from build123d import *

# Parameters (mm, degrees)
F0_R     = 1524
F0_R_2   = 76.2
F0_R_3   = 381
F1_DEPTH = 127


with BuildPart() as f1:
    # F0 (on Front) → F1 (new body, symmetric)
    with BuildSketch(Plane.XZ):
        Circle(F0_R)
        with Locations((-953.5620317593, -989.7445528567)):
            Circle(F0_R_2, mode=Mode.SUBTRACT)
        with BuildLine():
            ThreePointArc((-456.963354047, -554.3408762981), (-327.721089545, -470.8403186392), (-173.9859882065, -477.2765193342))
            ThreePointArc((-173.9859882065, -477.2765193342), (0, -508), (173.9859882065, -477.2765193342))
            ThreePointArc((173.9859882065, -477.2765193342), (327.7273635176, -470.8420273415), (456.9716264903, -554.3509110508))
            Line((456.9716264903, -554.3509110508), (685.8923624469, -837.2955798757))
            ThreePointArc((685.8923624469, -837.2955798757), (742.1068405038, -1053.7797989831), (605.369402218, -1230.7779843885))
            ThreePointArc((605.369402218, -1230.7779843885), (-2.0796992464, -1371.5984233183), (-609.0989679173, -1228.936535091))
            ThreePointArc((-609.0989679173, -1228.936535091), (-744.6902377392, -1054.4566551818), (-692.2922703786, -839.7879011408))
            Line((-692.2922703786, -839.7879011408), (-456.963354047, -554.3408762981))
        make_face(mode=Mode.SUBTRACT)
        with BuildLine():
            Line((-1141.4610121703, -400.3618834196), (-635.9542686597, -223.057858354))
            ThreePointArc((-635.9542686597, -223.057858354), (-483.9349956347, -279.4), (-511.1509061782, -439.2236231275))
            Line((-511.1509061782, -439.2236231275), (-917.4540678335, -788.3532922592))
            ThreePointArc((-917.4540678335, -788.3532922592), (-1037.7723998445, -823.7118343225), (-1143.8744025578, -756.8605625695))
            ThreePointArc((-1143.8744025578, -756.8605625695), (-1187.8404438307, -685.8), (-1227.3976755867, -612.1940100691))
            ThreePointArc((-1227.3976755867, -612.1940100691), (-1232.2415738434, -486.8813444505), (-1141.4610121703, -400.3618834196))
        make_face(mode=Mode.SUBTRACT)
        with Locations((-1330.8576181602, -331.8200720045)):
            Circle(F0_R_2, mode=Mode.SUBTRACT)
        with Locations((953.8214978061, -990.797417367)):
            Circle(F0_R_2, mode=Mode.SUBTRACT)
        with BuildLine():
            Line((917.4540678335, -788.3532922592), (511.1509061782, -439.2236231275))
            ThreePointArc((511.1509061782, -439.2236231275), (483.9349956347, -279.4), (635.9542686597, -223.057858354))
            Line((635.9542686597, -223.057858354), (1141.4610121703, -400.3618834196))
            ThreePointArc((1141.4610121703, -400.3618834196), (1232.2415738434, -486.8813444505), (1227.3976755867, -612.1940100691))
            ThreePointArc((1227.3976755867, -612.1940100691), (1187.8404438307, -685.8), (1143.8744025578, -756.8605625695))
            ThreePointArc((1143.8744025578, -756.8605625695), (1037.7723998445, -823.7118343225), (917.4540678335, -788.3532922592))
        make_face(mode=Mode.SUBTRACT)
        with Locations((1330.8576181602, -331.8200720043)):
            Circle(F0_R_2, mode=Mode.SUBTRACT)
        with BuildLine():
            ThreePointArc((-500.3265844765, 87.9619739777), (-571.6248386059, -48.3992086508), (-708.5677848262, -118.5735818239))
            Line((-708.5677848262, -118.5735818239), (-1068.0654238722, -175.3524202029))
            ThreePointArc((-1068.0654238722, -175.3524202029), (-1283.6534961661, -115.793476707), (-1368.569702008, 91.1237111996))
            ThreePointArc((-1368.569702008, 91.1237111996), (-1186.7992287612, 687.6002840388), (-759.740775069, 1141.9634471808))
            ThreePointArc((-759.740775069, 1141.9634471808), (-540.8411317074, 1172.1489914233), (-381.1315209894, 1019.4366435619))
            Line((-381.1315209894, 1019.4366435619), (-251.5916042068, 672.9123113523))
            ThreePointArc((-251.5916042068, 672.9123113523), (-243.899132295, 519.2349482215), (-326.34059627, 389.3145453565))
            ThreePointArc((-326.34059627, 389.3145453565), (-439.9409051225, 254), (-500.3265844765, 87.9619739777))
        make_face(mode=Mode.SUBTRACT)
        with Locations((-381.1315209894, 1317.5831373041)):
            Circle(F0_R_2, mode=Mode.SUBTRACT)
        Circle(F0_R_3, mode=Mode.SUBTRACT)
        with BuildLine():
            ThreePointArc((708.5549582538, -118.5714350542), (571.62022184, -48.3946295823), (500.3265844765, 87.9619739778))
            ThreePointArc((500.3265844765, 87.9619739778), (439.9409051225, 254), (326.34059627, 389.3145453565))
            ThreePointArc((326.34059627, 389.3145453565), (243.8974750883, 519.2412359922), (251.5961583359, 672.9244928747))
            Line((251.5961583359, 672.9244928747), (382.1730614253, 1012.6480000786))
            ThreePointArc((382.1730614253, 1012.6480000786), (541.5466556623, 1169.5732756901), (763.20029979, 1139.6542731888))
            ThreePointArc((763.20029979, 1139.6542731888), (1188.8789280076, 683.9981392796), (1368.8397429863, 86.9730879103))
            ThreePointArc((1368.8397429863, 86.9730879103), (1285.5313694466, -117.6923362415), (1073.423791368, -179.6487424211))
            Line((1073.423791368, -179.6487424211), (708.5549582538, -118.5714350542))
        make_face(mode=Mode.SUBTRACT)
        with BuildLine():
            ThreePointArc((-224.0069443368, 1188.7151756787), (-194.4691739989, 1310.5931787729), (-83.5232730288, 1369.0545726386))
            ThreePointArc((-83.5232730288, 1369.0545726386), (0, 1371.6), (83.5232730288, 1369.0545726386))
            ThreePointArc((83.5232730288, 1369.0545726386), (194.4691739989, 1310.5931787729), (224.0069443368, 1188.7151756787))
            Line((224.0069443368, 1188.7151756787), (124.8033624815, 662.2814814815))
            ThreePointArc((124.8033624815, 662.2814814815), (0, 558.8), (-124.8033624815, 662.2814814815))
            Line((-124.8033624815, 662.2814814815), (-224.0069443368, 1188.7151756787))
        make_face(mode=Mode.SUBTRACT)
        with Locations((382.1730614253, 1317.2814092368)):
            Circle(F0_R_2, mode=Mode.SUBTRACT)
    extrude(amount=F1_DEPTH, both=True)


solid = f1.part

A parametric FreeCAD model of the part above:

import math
import FreeCAD as App
import Part
import Sketcher
from FreeCAD import Vector
Q = App.Units.Quantity

doc = App.newDocument("Part")
body = doc.addObject("PartDesign::Body", "Body")

sketch1 = body.newObject("Sketcher::SketchObject", "Sketch")
sketch1.AttachmentSupport = (doc.getObject("XZ_Plane"), [""])
sketch1.MapMode = "FlatFace"
sketch1.addGeometry([
    Part.Circle(Vector(0, 0, 0), Vector(0, 0, 1), 1524),
    Part.Circle(Vector(-953.562032, -989.744553, 0), Vector(0, 0, 1), 76.2),
    Part.LineSegment(Vector(-692.29227, -839.787901, 0), Vector(-456.963354, -554.340876, 0)),
    Part.ArcOfCircle(Part.Circle(Vector(-260.978982, -715.914779, 0), Vector(0, 0, 1), 254), math.radians(69.971221), math.radians(140.497066)),
    Part.ArcOfCircle(Part.Circle(Vector(0, 0, 0), Vector(0, 0, 1), 508), math.radians(-110.028779), math.radians(-69.971221)),
    Part.ArcOfCircle(Part.Circle(Vector(260.978982, -715.914779, 0), Vector(0, 0, 1), 254), math.radians(39.5), math.radians(110.028779)),
    Part.LineSegment(Vector(456.971626, -554.350911, 0), Vector(685.892362, -837.29558, 0)),
    Part.ArcOfCircle(Part.Circle(Vector(493.263957, -1002.856135, 0), Vector(0, 0, 1), 254), math.radians(-63.809312), math.radians(40.67845)),
    Part.ArcOfCircle(Part.Circle(Vector(0, 0, 0), Vector(0, 0, 1), 1371.6), math.radians(-116.364438), math.radians(-63.809312)),
    Part.ArcOfCircle(Part.Circle(Vector(-496.302863, -1001.355695, 0), Vector(0, 0, 1), 254), math.radians(140.498852), math.radians(243.635562)),
    Part.ArcOfCircle(Part.Circle(Vector(-1091.020156, -544.172453, 0), Vector(0, 0, 1), 152.4), math.radians(109.328071), math.radians(206.508826)),
    Part.LineSegment(Vector(-1141.461012, -400.361883, 0), Vector(-635.954269, -223.057858, 0)),
    Part.ArcOfCircle(Part.Circle(Vector(-593.920222, -342.9, 0), Vector(0, 0, 1), 127), math.radians(-49.328071), math.radians(109.328071)),
    Part.LineSegment(Vector(-511.150906, -439.223623, 0), Vector(-917.454068, -788.353292, 0)),
    Part.ArcOfCircle(Part.Circle(Vector(-1016.777247, -672.764945, 0), Vector(0, 0, 1), 152.4), math.radians(-146.508826), math.radians(-49.328071)),
    Part.ArcOfCircle(Part.Circle(Vector(0, 0, 0), Vector(0, 0, 1), 1371.6), math.radians(-153.491174), math.radians(-146.508826)),
    Part.Circle(Vector(-1330.857618, -331.820072, 0), Vector(0, 0, 1), 76.2),
    Part.Circle(Vector(0, 0, 0), Vector(0, 0, 1), 381),
    Part.Circle(Vector(953.821498, -990.797417, 0), Vector(0, 0, 1), 76.2),
    Part.ArcOfCircle(Part.Circle(Vector(1016.777247, -672.764945, 0), Vector(0, 0, 1), 152.4), math.radians(-130.671929), math.radians(-33.491174)),
    Part.LineSegment(Vector(917.454068, -788.353292, 0), Vector(511.150906, -439.223623, 0)),
    Part.ArcOfCircle(Part.Circle(Vector(593.920222, -342.9, 0), Vector(0, 0, 1), 127), math.radians(70.671929), math.radians(229.328071)),
    Part.LineSegment(Vector(635.954269, -223.057858, 0), Vector(1141.461012, -400.361883, 0)),
    Part.ArcOfCircle(Part.Circle(Vector(1091.020156, -544.172453, 0), Vector(0, 0, 1), 152.4), math.radians(-26.508826), math.radians(70.671929)),
    Part.ArcOfCircle(Part.Circle(Vector(0, 0, 0), Vector(0, 0, 1), 1371.6), math.radians(-33.491174), math.radians(-26.508826)),
    Part.Circle(Vector(1330.857618, -331.820072, 0), Vector(0, 0, 1), 76.2),
    Part.ArcOfCircle(Part.Circle(Vector(0, 0, 0), Vector(0, 0, 1), 508), math.radians(129.971221), math.radians(170.028779)),
    Part.ArcOfCircle(Part.Circle(Vector(-750.489877, 131.942961, 0), Vector(0, 0, 1), 254), math.radians(-80.5), math.radians(-9.971221)),
    Part.LineSegment(Vector(-708.567785, -118.573582, 0), Vector(-1068.065424, -175.35242, 0)),
    Part.ArcOfCircle(Part.Circle(Vector(-1115.130868, 74.24895, 0), Vector(0, 0, 1), 254), math.radians(176.190688), math.radians(280.67845)),
    Part.ArcOfCircle(Part.Circle(Vector(0, 0, 0), Vector(0, 0, 1), 1371.6), math.radians(123.635562), math.radians(176.190688)),
    Part.ArcOfCircle(Part.Circle(Vector(-619.048039, 930.488735, 0), Vector(0, 0, 1), 254), math.radians(20.498852), math.radians(123.635562)),
    Part.LineSegment(Vector(-381.131521, 1019.436644, 0), Vector(-251.591604, 672.912311, 0)),
    Part.ArcOfCircle(Part.Circle(Vector(-489.510894, 583.971818, 0), Vector(0, 0, 1), 254), math.radians(-50.028779), math.radians(20.497066)),
    Part.LineSegment(Vector(-124.803362, 662.281481, 0), Vector(-224.006944, 1188.715176, 0)),
    Part.ArcOfCircle(Part.Circle(Vector(-74.242909, 1216.937398, 0), Vector(0, 0, 1), 152.4), math.radians(93.491174), math.radians(190.671929)),
    Part.ArcOfCircle(Part.Circle(Vector(0, 0, 0), Vector(0, 0, 1), 1371.6), math.radians(86.508826), math.radians(93.491174)),
    Part.ArcOfCircle(Part.Circle(Vector(74.242909, 1216.937398, 0), Vector(0, 0, 1), 152.4), math.radians(-10.671929), math.radians(86.508826)),
    Part.LineSegment(Vector(224.006944, 1188.715176, 0), Vector(124.803362, 662.281481, 0)),
    Part.ArcOfCircle(Part.Circle(Vector(0, 685.8, 0), Vector(0, 0, 1), 127), math.radians(-169.328071), math.radians(-10.671929)),
    Part.Circle(Vector(-381.131521, 1317.583137, 0), Vector(0, 0, 1), 76.2),
    Part.LineSegment(Vector(1073.423791, -179.648742, 0), Vector(708.554958, -118.571435, 0)),
    Part.ArcOfCircle(Part.Circle(Vector(750.489877, 131.942961, 0), Vector(0, 0, 1), 254), math.radians(-170.028779), math.radians(-99.502934)),
    Part.ArcOfCircle(Part.Circle(Vector(0, 0, 0), Vector(0, 0, 1), 508), math.radians(9.971221), math.radians(50.028779)),
    Part.ArcOfCircle(Part.Circle(Vector(489.510894, 583.971818, 0), Vector(0, 0, 1), 254), math.radians(159.5), math.radians(230.028779)),
    Part.LineSegment(Vector(251.596158, 672.924493, 0), Vector(382.173061, 1012.648, 0)),
    Part.ArcOfCircle(Part.Circle(Vector(621.866911, 928.607186, 0), Vector(0, 0, 1), 254), math.radians(56.190688), math.radians(160.67845)),
    Part.ArcOfCircle(Part.Circle(Vector(0, 0, 0), Vector(0, 0, 1), 1371.6), math.radians(3.635562), math.radians(56.190688)),
    Part.ArcOfCircle(Part.Circle(Vector(1115.350902, 70.866961, 0), Vector(0, 0, 1), 254), math.radians(-99.501148), math.radians(3.635562)),
    Part.Circle(Vector(382.173061, 1317.281409, 0), Vector(0, 0, 1), 76.2),
], False)
sketch1.addConstraint([
    Sketcher.Constraint("Tangent", 2, 2, 3, 2),
    Sketcher.Constraint("Tangent", 3, 1, 4, 1),
    Sketcher.Constraint("Tangent", 4, 2, 5, 2),
    Sketcher.Constraint("Coincident", 5, 1, 6, 1),
    Sketcher.Constraint("Coincident", 6, 2, 7, 2),
    Sketcher.Constraint("Tangent", 7, 1, 8, 2),
    Sketcher.Constraint("Tangent", 8, 1, 9, 2),
    Sketcher.Constraint("Coincident", 9, 1, 2, 1),
    Sketcher.Constraint("Tangent", 10, 1, 11, 1),
    Sketcher.Constraint("Tangent", 11, 2, 12, 2),
    Sketcher.Constraint("Tangent", 12, 1, 13, 1),
    Sketcher.Constraint("Tangent", 13, 2, 14, 2),
    Sketcher.Constraint("Tangent", 14, 1, 15, 2),
    Sketcher.Constraint("Tangent", 15, 1, 10, 2),
    Sketcher.Constraint("Tangent", 19, 1, 20, 1),
    Sketcher.Constraint("Tangent", 20, 2, 21, 2),
    Sketcher.Constraint("Tangent", 21, 1, 22, 1),
    Sketcher.Constraint("Tangent", 22, 2, 23, 2),
    Sketcher.Constraint("Tangent", 23, 1, 24, 2),
    Sketcher.Constraint("Tangent", 24, 1, 19, 2),
    Sketcher.Constraint("Tangent", 26, 2, 27, 2),
    Sketcher.Constraint("Coincident", 27, 1, 28, 1),
    Sketcher.Constraint("Coincident", 28, 2, 29, 2),
    Sketcher.Constraint("Tangent", 29, 1, 30, 2),
    Sketcher.Constraint("Tangent", 30, 1, 31, 2),
    Sketcher.Constraint("Coincident", 31, 1, 32, 1),
    Sketcher.Constraint("Tangent", 32, 2, 33, 2),
    Sketcher.Constraint("Tangent", 33, 1, 26, 1),
    Sketcher.Constraint("Tangent", 34, 2, 35, 2),
    Sketcher.Constraint("Tangent", 35, 1, 36, 2),
    Sketcher.Constraint("Tangent", 36, 1, 37, 2),
    Sketcher.Constraint("Tangent", 37, 1, 38, 1),
    Sketcher.Constraint("Tangent", 38, 2, 39, 2),
    Sketcher.Constraint("Tangent", 39, 1, 34, 1),
    Sketcher.Constraint("Tangent", 41, 2, 42, 2),
    Sketcher.Constraint("Tangent", 42, 1, 43, 1),
    Sketcher.Constraint("Tangent", 43, 2, 44, 2),
    Sketcher.Constraint("Coincident", 44, 1, 45, 1),
    Sketcher.Constraint("Coincident", 45, 2, 46, 2),
    Sketcher.Constraint("Tangent", 46, 1, 47, 2),
    Sketcher.Constraint("Tangent", 47, 1, 48, 2),
    Sketcher.Constraint("Coincident", 48, 1, 41, 1),
    Sketcher.Constraint("Coincident", 0, 3, -1, 1),
    Sketcher.Constraint("Coincident", 4, 3, -1, 1),
    Sketcher.Constraint("Coincident", 8, 3, -1, 1),
    Sketcher.Constraint("Coincident", 15, 3, -1, 1),
    Sketcher.Constraint("Coincident", 17, 3, -1, 1),
    Sketcher.Constraint("Coincident", 24, 3, -1, 1),
    Sketcher.Constraint("Coincident", 26, 3, -1, 1),
    Sketcher.Constraint("Coincident", 30, 3, -1, 1),
    Sketcher.Constraint("Coincident", 36, 3, -1, 1),
    Sketcher.Constraint("Coincident", 43, 3, -1, 1),
    Sketcher.Constraint("Coincident", 47, 3, -1, 1),
    Sketcher.Constraint("Equal", 3, 5),
    Sketcher.Constraint("Equal", 5, 7),
    Sketcher.Constraint("Equal", 7, 9),
    Sketcher.Constraint("Equal", 10, 14),
    Sketcher.Constraint("Equal", 8, 15),
    Sketcher.Constraint("Equal", 1, 16),
    Sketcher.Constraint("Equal", 16, 18),
    Sketcher.Constraint("Equal", 14, 19),
    Sketcher.Constraint("Equal", 12, 21),
    Sketcher.Constraint("Equal", 19, 23),
    Sketcher.Constraint("Equal", 15, 24),
    Sketcher.Constraint("Equal", 18, 25),
    Sketcher.Constraint("Equal", 4, 26),
    Sketcher.Constraint("Equal", 9, 27),
    Sketcher.Constraint("Equal", 27, 29),
    Sketcher.Constraint("Equal", 24, 30),
    Sketcher.Constraint("Equal", 29, 31),
    Sketcher.Constraint("Equal", 31, 33),
    Sketcher.Constraint("Equal", 23, 35),
    Sketcher.Constraint("Equal", 30, 36),
    Sketcher.Constraint("Equal", 35, 37),
    Sketcher.Constraint("Equal", 21, 39),
    Sketcher.Constraint("Equal", 25, 40),
    Sketcher.Constraint("Equal", 33, 42),
    Sketcher.Constraint("Equal", 26, 43),
    Sketcher.Constraint("Equal", 42, 44),
    Sketcher.Constraint("Equal", 44, 46),
    Sketcher.Constraint("Equal", 36, 47),
    Sketcher.Constraint("Equal", 46, 48),
    Sketcher.Constraint("Equal", 40, 49),
    Sketcher.Constraint("Symmetric", 12, 3, 21, 3, -2),
    Sketcher.Constraint("Symmetric", 16, 3, 25, 3, -2),
    Sketcher.Constraint("Symmetric", 34, 2, 37, 1, -2),
    Sketcher.Constraint("Horizontal", 3, 3, 5, 3),
    Sketcher.Constraint("Horizontal", 14, 3, 19, 3),
    Sketcher.Constraint("Horizontal", 10, 3, 23, 3),
    Sketcher.Constraint("Horizontal", 27, 3, 42, 3),
    Sketcher.Constraint("Horizontal", 33, 3, 44, 3),
    Sketcher.Constraint("Vertical", 40, 3, 31, 1),
    Sketcher.Constraint("Vertical", 49, 3, 45, 2),
    Sketcher.Constraint("Equal", 11, 13),
    Sketcher.Constraint("Equal", 6, 28),
    Sketcher.Constraint("Equal", 2, 32),
    Sketcher.Constraint("Equal", 22, 34),
    Sketcher.Constraint("Equal", 32, 41),
    Sketcher.Constraint("Equal", 28, 45),
    Sketcher.Constraint("Diameter", 0, Q("120 in")),
    Sketcher.Constraint("Diameter", 1, Q("6 in")),
    Sketcher.Constraint("Diameter", 17, Q("30 in")),
    Sketcher.Constraint("Radius", 3, Q("10 in")),
    Sketcher.Constraint("Radius", 4, Q("20 in")),
    Sketcher.Constraint("Radius", 8, Q("54 in")),
    Sketcher.Constraint("Radius", 10, Q("6 in")),
    Sketcher.Constraint("Radius", 12, Q("5 in")),
    Sketcher.Constraint("DistanceY", -1, 1, 39, 3, Q("27 in")),
    Sketcher.Constraint("DistanceY", 12, 3, -1, 1, Q("13.5 in")),
    Sketcher.Constraint("DistanceX", -1, 1, 48, 3, 1115.350902),
    Sketcher.Constraint("DistanceY", 9, 1, -1, 1, 839.787901),
    Sketcher.Constraint("DistanceY", -1, 1, 45, 2, 1012.648),
    Sketcher.Constraint("DistanceX", -1, 1, 46, 1, 763.2003),
    Sketcher.Constraint("Distance", 2, 369.94554),
    Sketcher.Constraint("Distance", 6, 363.953828),
    Sketcher.Constraint("DistanceX", 1, 3, -1, 1, 953.562032),
    Sketcher.Constraint("DistanceY", 3, 3, -1, 1, 715.914779),
    Sketcher.Constraint("DistanceX", 12, 3, -1, 1, 593.920222),
    Sketcher.Constraint("DistanceX", 16, 3, -1, 1, 1330.857618),
    Sketcher.Constraint("DistanceY", -1, 1, 27, 3, 131.942961),
    Sketcher.Constraint("DistanceX", 29, 3, -1, 1, 1115.130868),
    Sketcher.Constraint("DistanceX", 31, 3, -1, 1, 619.048039),
    Sketcher.Constraint("DistanceY", -1, 1, 33, 3, 583.971818),
    Sketcher.Constraint("DistanceX", 35, 3, -1, 1, 74.242909),
    Sketcher.Constraint("DistanceY", -1, 1, 49, 3, 1317.281409),
    Sketcher.Constraint("DistanceY", 5, 1, -1, 1, 554.350911),
    Sketcher.Constraint("DistanceY", 6, 2, -1, 1, 837.29558),
    Sketcher.Constraint("DistanceY", 27, 1, -1, 1, 118.573582),
    Sketcher.Constraint("DistanceY", 1, 3, -1, 1, 989.744553),
    Sketcher.Constraint("DistanceY", 16, 3, -1, 1, 331.820072),
    Sketcher.Constraint("DistanceX", -1, 1, 18, 3, 953.821498),
    Sketcher.Constraint("DistanceY", 18, 3, -1, 1, 990.797417),
    Sketcher.Constraint("DistanceY", -1, 1, 40, 3, 1317.583137),
])
pad1 = body.newObject("PartDesign::Pad", "Pad")
pad1.Profile = sketch1
pad1.Length = Q("10 in")
pad1.Midplane = True

doc.recompute()
